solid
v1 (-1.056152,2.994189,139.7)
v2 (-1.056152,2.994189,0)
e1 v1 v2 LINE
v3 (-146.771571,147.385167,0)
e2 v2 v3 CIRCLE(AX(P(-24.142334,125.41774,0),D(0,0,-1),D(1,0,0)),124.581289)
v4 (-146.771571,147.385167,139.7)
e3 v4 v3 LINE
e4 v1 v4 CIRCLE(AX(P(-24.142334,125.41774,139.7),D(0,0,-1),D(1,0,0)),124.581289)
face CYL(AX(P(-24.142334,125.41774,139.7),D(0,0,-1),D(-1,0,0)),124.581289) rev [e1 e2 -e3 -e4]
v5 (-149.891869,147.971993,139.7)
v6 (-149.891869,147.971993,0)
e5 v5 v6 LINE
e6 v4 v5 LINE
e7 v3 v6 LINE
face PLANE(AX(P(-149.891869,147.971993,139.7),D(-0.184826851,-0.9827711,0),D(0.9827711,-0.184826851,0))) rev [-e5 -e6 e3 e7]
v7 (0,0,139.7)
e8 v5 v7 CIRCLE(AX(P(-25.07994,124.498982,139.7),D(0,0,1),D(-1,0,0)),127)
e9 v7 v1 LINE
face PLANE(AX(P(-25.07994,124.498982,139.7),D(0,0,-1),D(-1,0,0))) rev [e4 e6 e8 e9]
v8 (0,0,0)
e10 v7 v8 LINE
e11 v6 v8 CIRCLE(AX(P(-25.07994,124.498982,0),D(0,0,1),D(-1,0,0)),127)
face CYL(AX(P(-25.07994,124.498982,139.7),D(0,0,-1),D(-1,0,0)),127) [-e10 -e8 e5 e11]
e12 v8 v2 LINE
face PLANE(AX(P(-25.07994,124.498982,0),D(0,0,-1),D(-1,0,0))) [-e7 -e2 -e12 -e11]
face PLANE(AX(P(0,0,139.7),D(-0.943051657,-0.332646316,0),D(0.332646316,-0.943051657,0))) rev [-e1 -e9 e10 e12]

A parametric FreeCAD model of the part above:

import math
import FreeCAD as App
import Part
import Sketcher
Q = App.Units.Quantity

doc = App.newDocument("Part")
body = doc.addObject("PartDesign::Body", "Body")

sketch1 = body.newObject("Sketcher::SketchObject", "Sketch")
sketch1.AttachmentSupport = (doc.getObject("XY_Plane"), [""])
sketch1.MapMode = "FlatFace"
sketch1.addGeometry([
    Part.LineSegment(App.Vector(-146.771571, 147.385167, 0), App.Vector(-149.891869, 147.971993, 0)),
    Part.ArcOfCircle(Part.Circle(App.Vector(-25.07994, 124.498982, 0), App.Vector(0, 0, 1), 127), math.radians(169.348962), math.radians(281.389625)),
    Part.LineSegment(App.Vector(0, 0, 0), App.Vector(-1.056152, 2.994189, 0)),
    Part.ArcOfCircle(Part.Circle(App.Vector(-24.142334, 125.41774, 0), App.Vector(0, 0, 1), 124.581289), math.radians(169.843931), math.radians(280.679217)),
], False)
sketch1.addConstraint([
    Sketcher.Constraint("Coincident", 0, 2, 1, 1),
    Sketcher.Constraint("Coincident", 1, 2, 2, 1),
    Sketcher.Constraint("Coincident", 2, 2, 3, 2),
    Sketcher.Constraint("Coincident", 3, 1, 0, 1),
    Sketcher.Constraint("Coincident", 1, 2, -1, 1),
    Sketcher.Constraint("Equal", 0, 2),
    Sketcher.Constraint("Radius", 1, Q("5 in")),
    Sketcher.Constraint("Distance", 0, Q("0.125 in")),
    Sketcher.Constraint("Radius", 3, Q("124.581289 mm")),
    Sketcher.Constraint("DistanceX", 0, 2, 3, 1, Q("3.120298 mm")),
    Sketcher.Constraint("DistanceX", 1, 3, -1, 1, Q("25.07994 mm")),
    Sketcher.Constraint("DistanceY", -1, 1, 3, 3, Q("125.41774 mm")),
    Sketcher.Constraint("DistanceX", 0, 2, -1, 1, Q("149.891869 mm")),
])
pad1 = body.newObject("PartDesign::Pad", "Pad")
pad1.Profile = sketch1
pad1.Length = Q("5.5 in")

doc.recompute()
